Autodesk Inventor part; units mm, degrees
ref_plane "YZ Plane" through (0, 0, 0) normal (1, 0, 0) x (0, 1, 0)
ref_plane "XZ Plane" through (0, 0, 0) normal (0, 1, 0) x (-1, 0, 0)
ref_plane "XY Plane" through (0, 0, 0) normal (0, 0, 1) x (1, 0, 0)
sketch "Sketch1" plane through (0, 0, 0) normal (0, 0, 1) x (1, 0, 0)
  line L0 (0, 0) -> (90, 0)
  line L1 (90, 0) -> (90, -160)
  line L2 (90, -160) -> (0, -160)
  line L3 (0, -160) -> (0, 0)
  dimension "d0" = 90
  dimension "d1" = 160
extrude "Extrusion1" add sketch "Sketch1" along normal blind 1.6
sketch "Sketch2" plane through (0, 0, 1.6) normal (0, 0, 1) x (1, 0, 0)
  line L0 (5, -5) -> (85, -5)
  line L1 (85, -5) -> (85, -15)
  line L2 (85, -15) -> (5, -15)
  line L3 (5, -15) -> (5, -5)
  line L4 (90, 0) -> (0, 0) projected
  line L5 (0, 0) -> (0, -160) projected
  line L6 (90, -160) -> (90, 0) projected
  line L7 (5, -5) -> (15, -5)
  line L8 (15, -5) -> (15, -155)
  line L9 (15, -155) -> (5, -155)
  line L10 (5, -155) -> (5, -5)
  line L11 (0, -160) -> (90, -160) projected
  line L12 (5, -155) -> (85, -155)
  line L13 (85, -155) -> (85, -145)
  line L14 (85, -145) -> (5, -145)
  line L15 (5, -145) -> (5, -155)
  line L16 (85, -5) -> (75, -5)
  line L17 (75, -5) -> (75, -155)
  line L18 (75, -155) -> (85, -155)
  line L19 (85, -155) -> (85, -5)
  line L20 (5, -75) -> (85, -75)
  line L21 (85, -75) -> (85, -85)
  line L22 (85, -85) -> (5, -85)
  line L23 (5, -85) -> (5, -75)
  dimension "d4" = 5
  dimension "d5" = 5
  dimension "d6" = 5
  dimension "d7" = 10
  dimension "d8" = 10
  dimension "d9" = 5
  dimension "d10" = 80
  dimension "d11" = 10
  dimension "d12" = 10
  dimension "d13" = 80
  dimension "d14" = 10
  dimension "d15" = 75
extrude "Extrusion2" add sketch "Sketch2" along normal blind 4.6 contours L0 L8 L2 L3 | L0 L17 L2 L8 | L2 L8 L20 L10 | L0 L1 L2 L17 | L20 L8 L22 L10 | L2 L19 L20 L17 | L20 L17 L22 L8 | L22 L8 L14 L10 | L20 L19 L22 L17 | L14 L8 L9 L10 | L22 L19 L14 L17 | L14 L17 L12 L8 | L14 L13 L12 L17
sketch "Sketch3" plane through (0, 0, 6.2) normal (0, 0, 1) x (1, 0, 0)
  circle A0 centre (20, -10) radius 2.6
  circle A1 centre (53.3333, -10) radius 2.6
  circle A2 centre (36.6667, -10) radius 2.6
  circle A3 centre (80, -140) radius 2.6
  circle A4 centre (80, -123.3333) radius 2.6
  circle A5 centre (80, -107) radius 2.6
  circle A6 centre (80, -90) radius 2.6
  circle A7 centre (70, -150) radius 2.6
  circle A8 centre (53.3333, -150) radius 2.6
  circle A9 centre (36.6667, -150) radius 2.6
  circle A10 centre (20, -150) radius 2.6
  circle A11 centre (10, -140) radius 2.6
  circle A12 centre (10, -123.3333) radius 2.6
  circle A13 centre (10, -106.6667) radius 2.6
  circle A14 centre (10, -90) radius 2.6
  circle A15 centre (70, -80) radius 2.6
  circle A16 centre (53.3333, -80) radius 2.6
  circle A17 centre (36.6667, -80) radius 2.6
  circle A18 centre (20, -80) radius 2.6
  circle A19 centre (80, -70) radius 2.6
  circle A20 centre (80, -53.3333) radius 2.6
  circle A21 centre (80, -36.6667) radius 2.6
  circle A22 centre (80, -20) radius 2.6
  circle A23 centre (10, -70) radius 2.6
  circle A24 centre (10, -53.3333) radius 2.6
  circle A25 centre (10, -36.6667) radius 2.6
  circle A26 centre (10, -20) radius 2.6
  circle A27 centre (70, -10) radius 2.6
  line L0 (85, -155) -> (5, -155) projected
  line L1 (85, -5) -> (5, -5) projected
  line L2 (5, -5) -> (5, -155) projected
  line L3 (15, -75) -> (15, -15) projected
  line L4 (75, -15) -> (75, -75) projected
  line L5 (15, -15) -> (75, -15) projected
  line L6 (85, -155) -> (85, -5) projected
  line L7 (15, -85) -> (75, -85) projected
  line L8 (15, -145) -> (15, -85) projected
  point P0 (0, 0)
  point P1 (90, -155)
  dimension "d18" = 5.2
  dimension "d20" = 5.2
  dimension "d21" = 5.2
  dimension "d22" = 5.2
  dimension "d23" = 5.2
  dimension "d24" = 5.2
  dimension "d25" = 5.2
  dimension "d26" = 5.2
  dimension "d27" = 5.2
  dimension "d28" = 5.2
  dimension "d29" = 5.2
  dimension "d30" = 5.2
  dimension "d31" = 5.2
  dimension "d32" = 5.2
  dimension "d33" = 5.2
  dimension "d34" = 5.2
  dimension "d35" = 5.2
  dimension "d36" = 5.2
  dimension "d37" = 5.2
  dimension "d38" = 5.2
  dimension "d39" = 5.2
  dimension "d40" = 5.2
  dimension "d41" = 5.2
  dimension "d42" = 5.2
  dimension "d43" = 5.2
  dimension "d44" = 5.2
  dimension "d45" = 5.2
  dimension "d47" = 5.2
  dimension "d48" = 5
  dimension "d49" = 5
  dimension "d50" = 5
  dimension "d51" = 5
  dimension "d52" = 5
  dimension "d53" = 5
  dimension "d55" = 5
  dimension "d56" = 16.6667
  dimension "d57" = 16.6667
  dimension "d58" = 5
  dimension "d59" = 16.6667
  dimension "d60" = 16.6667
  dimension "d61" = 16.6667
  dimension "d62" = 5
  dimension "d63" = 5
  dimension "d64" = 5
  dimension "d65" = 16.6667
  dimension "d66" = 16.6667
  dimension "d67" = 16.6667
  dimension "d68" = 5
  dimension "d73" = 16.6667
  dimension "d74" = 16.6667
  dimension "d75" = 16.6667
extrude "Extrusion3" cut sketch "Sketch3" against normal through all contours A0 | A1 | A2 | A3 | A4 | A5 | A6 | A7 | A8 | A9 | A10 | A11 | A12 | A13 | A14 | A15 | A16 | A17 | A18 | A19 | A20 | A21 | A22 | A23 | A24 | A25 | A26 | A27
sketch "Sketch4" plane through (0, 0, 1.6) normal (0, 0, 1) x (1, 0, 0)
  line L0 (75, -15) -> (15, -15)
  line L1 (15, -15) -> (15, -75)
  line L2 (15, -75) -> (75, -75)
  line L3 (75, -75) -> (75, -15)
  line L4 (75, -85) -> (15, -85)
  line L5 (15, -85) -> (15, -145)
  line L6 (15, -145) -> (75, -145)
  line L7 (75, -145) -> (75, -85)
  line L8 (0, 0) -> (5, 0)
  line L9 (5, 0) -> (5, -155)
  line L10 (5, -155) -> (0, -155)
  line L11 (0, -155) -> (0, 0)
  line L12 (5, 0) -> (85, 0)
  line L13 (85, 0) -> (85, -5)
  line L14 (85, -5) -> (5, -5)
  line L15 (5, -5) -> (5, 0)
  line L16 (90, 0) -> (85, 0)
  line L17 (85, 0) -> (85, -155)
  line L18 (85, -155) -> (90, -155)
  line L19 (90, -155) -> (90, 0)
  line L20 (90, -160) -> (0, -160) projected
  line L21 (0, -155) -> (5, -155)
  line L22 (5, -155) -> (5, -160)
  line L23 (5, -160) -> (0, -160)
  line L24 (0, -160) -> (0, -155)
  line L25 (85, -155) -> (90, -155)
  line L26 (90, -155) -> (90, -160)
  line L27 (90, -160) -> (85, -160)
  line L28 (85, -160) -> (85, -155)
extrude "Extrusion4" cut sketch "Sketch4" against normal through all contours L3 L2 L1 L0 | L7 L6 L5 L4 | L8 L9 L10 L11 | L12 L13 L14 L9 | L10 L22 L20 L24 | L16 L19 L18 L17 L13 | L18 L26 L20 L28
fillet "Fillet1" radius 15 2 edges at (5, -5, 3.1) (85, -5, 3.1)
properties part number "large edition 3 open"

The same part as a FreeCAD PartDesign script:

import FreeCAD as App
import Part
import Sketcher
from FreeCAD import Vector
Q = App.Units.Quantity


def edges_at(feature, points):
    """Names of the edges that pass closest to the given points."""
    edges = feature.Shape.Edges
    near = lambda p: min(range(len(edges)), key=lambda i: edges[i].distToShape(Part.Vertex(*p))[0])
    return sorted({f"Edge{near(p) + 1}" for p in points})


def add_polygon(sketch, points):
    """Adds a closed chain of lines whose ends are joined by coincident constraints."""
    first, n = sketch.GeometryCount, len(points)
    for a, b in zip(points, points[1:] + points[:1]):
        sketch.addGeometry(Part.LineSegment(App.Vector(*a, 0), App.Vector(*b, 0)), False)
    for i in range(n):
        sketch.addConstraint(Sketcher.Constraint("Coincident", first + i, 2, first + (i + 1) % n, 1))

doc = App.newDocument("Part")
body = doc.addObject("PartDesign::Body", "Body")

# Sketch on XY plane
sketch1 = body.newObject("Sketcher::SketchObject", "Sketch")
sketch1.AttachmentSupport = (doc.getObject("XY_Plane"), [""])
sketch1.MapMode = "FlatFace"
add_polygon(sketch1, [(90, 0), (0, 0), (0, -160), (90, -160)])  # lines 0-3
sketch1.addConstraint([
    Sketcher.Constraint("Horizontal", 0),
    Sketcher.Constraint("Vertical", 1),
    Sketcher.Constraint("Horizontal", 2),
    Sketcher.Constraint("Vertical", 3),
    Sketcher.Constraint("Coincident", 0, 2, -1, 1),
    Sketcher.Constraint("DistanceX", 0, 2, 0, 1, Q("90 mm")),
    Sketcher.Constraint("DistanceY", 1, 2, 1, 1, Q("160 mm")),
])
pad1 = body.newObject("PartDesign::Pad", "Pad")
pad1.Profile = sketch1
pad1.Length = 1.6

# Sketch on XY plane
sketch2 = body.newObject("Sketcher::SketchObject", "Sketch001")
sketch2.AttachmentSupport = (doc.getObject("XY_Plane"), [""])
sketch2.MapMode = "FlatFace"
sketch2.AttachmentOffset = App.Placement(Vector(0, 0, 1.6), App.Rotation())
add_polygon(sketch2, [(5, -5), (5, -155), (85, -155), (85, -5)])  # lines 0-3
add_polygon(sketch2, [(15, -15), (75, -15), (75, -75), (15, -75)])  # lines 4-7
add_polygon(sketch2, [(15, -85), (75, -85), (75, -145), (15, -145)])  # lines 8-11
sketch2.addConstraint([
    Sketcher.Constraint("Vertical", 0),
    Sketcher.Constraint("Horizontal", 1),
    Sketcher.Constraint("Vertical", 2),
    Sketcher.Constraint("Horizontal", 3),
    Sketcher.Constraint("Horizontal", 4),
    Sketcher.Constraint("Vertical", 5),
    Sketcher.Constraint("Horizontal", 6),
    Sketcher.Constraint("Vertical", 7),
    Sketcher.Constraint("Horizontal", 8),
    Sketcher.Constraint("Vertical", 9),
    Sketcher.Constraint("Horizontal", 10),
    Sketcher.Constraint("Vertical", 11),
    Sketcher.Constraint("Vertical", 5, 2, 8, 2),
    Sketcher.Constraint("Vertical", 7, 2, 10, 2),
    Sketcher.Constraint("Equal", 10, 5),
    Sketcher.Constraint("Equal", 7, 9),
    Sketcher.Constraint("DistanceX", 1, 1, 1, 2, Q("80 mm")),
    Sketcher.Constraint("DistanceX", -1, 1, 0, 2, Q("5 mm")),
    Sketcher.Constraint("DistanceY", 2, 2, -1, 1, Q("5 mm")),
    Sketcher.Constraint("DistanceX", -1, 1, 4, 2, Q("75 mm")),
    Sketcher.Constraint("DistanceY", 5, 2, -1, 1, Q("75 mm")),
    Sketcher.Constraint("DistanceY", 4, 2, 2, 2, Q("10 mm")),
    Sketcher.Constraint("DistanceY", 1, 2, 5, 2, Q("80 mm")),
    Sketcher.Constraint("DistanceY", 8, 2, 5, 2, Q("10 mm")),
])
pad2 = body.newObject("PartDesign::Pad", "Pad001")
pad2.Profile = sketch2
pad2.Length = 4.6

# Sketch on XY plane
sketch3 = body.newObject("Sketcher::SketchObject", "Sketch002")
sketch3.AttachmentSupport = (doc.getObject("XY_Plane"), [""])
sketch3.MapMode = "FlatFace"
sketch3.AttachmentOffset = App.Placement(Vector(0, 0, 6.2), App.Rotation())
sketch3.addGeometry([
    Part.Circle(Vector(20, -10, 0), Vector(0, 0, 1), 2.6),  # 0
    Part.Circle(Vector(53.3, -10, 0), Vector(0, 0, 1), 2.6),  # 1
    Part.Circle(Vector(36.7, -10, 0), Vector(0, 0, 1), 2.6),  # 2
    Part.Circle(Vector(80, -140, 0), Vector(0, 0, 1), 2.6),  # 3
    Part.Circle(Vector(80, -123.3, 0), Vector(0, 0, 1), 2.6),  # 4
    Part.Circle(Vector(80, -107, 0), Vector(0, 0, 1), 2.6),  # 5
    Part.Circle(Vector(80, -90, 0), Vector(0, 0, 1), 2.6),  # 6
    Part.Circle(Vector(70, -150, 0), Vector(0, 0, 1), 2.6),  # 7
    Part.Circle(Vector(53.3, -150, 0), Vector(0, 0, 1), 2.6),  # 8
    Part.Circle(Vector(36.7, -150, 0), Vector(0, 0, 1), 2.6),  # 9
    Part.Circle(Vector(20, -150, 0), Vector(0, 0, 1), 2.6),  # 10
    Part.Circle(Vector(10, -140, 0), Vector(0, 0, 1), 2.6),  # 11
    Part.Circle(Vector(10, -123.3, 0), Vector(0, 0, 1), 2.6),  # 12
    Part.Circle(Vector(10, -106.7, 0), Vector(0, 0, 1), 2.6),  # 13
    Part.Circle(Vector(10, -90, 0), Vector(0, 0, 1), 2.6),  # 14
    Part.Circle(Vector(70, -80, 0), Vector(0, 0, 1), 2.6),  # 15
    Part.Circle(Vector(53.3, -80, 0), Vector(0, 0, 1), 2.6),  # 16
    Part.Circle(Vector(36.7, -80, 0), Vector(0, 0, 1), 2.6),  # 17
    Part.Circle(Vector(20, -80, 0), Vector(0, 0, 1), 2.6),  # 18
    Part.Circle(Vector(80, -70, 0), Vector(0, 0, 1), 2.6),  # 19
    Part.Circle(Vector(80, -53.3, 0), Vector(0, 0, 1), 2.6),  # 20
    Part.Circle(Vector(80, -36.7, 0), Vector(0, 0, 1), 2.6),  # 21
    Part.Circle(Vector(80, -20, 0), Vector(0, 0, 1), 2.6),  # 22
    Part.Circle(Vector(10, -70, 0), Vector(0, 0, 1), 2.6),  # 23
    Part.Circle(Vector(10, -53.3, 0), Vector(0, 0, 1), 2.6),  # 24
    Part.Circle(Vector(10, -36.7, 0), Vector(0, 0, 1), 2.6),  # 25
    Part.Circle(Vector(10, -20, 0), Vector(0, 0, 1), 2.6),  # 26
    Part.Circle(Vector(70, -10, 0), Vector(0, 0, 1), 2.6),  # 27
], False)
sketch3.addConstraint([
    Sketcher.Constraint("Equal", 0, 1),
    Sketcher.Constraint("Equal", 1, 2),
    Sketcher.Constraint("Equal", 2, 3),
    Sketcher.Constraint("Equal", 3, 4),
    Sketcher.Constraint("Equal", 4, 5),
    Sketcher.Constraint("Equal", 5, 6),
    Sketcher.Constraint("Equal", 6, 7),
    Sketcher.Constraint("Equal", 7, 8),
    Sketcher.Constraint("Equal", 8, 9),
    Sketcher.Constraint("Equal", 9, 10),
    Sketcher.Constraint("Equal", 10, 11),
    Sketcher.Constraint("Equal", 11, 12),
    Sketcher.Constraint("Equal", 12, 13),
    Sketcher.Constraint("Equal", 13, 14),
    Sketcher.Constraint("Equal", 14, 15),
    Sketcher.Constraint("Equal", 15, 16),
    Sketcher.Constraint("Equal", 16, 17),
    Sketcher.Constraint("Equal", 17, 18),
    Sketcher.Constraint("Equal", 18, 19),
    Sketcher.Constraint("Equal", 19, 20),
    Sketcher.Constraint("Equal", 20, 21),
    Sketcher.Constraint("Equal", 21, 22),
    Sketcher.Constraint("Equal", 22, 23),
    Sketcher.Constraint("Equal", 23, 24),
    Sketcher.Constraint("Equal", 24, 25),
    Sketcher.Constraint("Equal", 25, 26),
    Sketcher.Constraint("Equal", 26, 27),
    Sketcher.Constraint("Horizontal", 0, 3, 1, 3),
    Sketcher.Constraint("Horizontal", 1, 3, 2, 3),
    Sketcher.Constraint("Horizontal", 7, 3, 8, 3),
    Sketcher.Constraint("Horizontal", 8, 3, 9, 3),
    Sketcher.Constraint("Horizontal", 9, 3, 10, 3),
    Sketcher.Constraint("Horizontal", 3, 3, 11, 3),
    Sketcher.Constraint("Horizontal", 4, 3, 12, 3),
    Sketcher.Constraint("Horizontal", 6, 3, 14, 3),
    Sketcher.Constraint("Horizontal", 15, 3, 16, 3),
    Sketcher.Constraint("Horizontal", 16, 3, 17, 3),
    Sketcher.Constraint("Horizontal", 17, 3, 18, 3),
    Sketcher.Constraint("Horizontal", 19, 3, 23, 3),
    Sketcher.Constraint("Horizontal", 20, 3, 24, 3),
    Sketcher.Constraint("Horizontal", 21, 3, 25, 3),
    Sketcher.Constraint("Horizontal", 22, 3, 26, 3),
    Sketcher.Constraint("Horizontal", 2, 3, 27, 3),
    Sketcher.Constraint("Vertical", 3, 3, 4, 3),
    Sketcher.Constraint("Vertical", 4, 3, 5, 3),
    Sketcher.Constraint("Vertical", 5, 3, 6, 3),
    Sketcher.Constraint("Vertical", 1, 3, 8, 3),
    Sketcher.Constraint("Vertical", 2, 3, 9, 3),
    Sketcher.Constraint("Vertical", 0, 3, 10, 3),
    Sketcher.Constraint("Vertical", 11, 3, 12, 3),
    Sketcher.Constraint("Vertical", 12, 3, 13, 3),
    Sketcher.Constraint("Vertical", 13, 3, 14, 3),
    Sketcher.Constraint("Vertical", 7, 3, 15, 3),
    Sketcher.Constraint("Vertical", 8, 3, 16, 3),
    Sketcher.Constraint("Vertical", 9, 3, 17, 3),
    Sketcher.Constraint("Vertical", 10, 3, 18, 3),
    Sketcher.Constraint("Vertical", 6, 3, 19, 3),
    Sketcher.Constraint("Vertical", 19, 3, 20, 3),
    Sketcher.Constraint("Vertical", 20, 3, 21, 3),
    Sketcher.Constraint("Vertical", 21, 3, 22, 3),
    Sketcher.Constraint("Vertical", 14, 3, 23, 3),
    Sketcher.Constraint("Vertical", 23, 3, 24, 3),
    Sketcher.Constraint("Vertical", 24, 3, 25, 3),
    Sketcher.Constraint("Vertical", 25, 3, 26, 3),
    Sketcher.Constraint("Vertical", 15, 3, 27, 3),
    Sketcher.Constraint("Diameter", 0, Q("5.2 mm")),
    Sketcher.Constraint("DistanceX", -1, 1, 0, 3, Q("20 mm")),
    Sketcher.Constraint("DistanceY", 0, 3, -1, 1, Q("10 mm")),
    Sketcher.Constraint("DistanceX", -1, 1, 3, 3, Q("80 mm")),
    Sketcher.Constraint("DistanceY", 3, 3, -1, 1, Q("140 mm")),
    Sketcher.Constraint("DistanceY", 5, 3, -1, 1, Q("107 mm")),
    Sketcher.Constraint("DistanceY", 6, 3, -1, 1, Q("90 mm")),
    Sketcher.Constraint("DistanceX", -1, 1, 7, 3, Q("70 mm")),
    Sketcher.Constraint("DistanceY", 7, 3, -1, 1, Q("150 mm")),
    Sketcher.Constraint("DistanceX", -1, 1, 11, 3, Q("10 mm")),
    Sketcher.Constraint("DistanceY", 15, 3, -1, 1, Q("80 mm")),
    Sketcher.Constraint("DistanceY", 19, 3, -1, 1, Q("70 mm")),
    Sketcher.Constraint("DistanceY", 22, 3, -1, 1, Q("20 mm")),
    Sketcher.Constraint("DistanceX", 2, 3, 1, 3, Q("16.6666 mm")),
    Sketcher.Constraint("DistanceX", 0, 3, 2, 3, Q("16.6667 mm")),
    Sketcher.Constraint("DistanceY", 3, 3, 4, 3, Q("16.6667 mm")),
    Sketcher.Constraint("DistanceY", 12, 3, 13, 3, Q("16.6666 mm")),
    Sketcher.Constraint("DistanceY", 19, 3, 20, 3, Q("16.6667 mm")),
    Sketcher.Constraint("DistanceY", 20, 3, 21, 3, Q("16.6666 mm")),
])
pocket1 = body.newObject("PartDesign::Pocket", "Pocket")
pocket1.Profile = sketch3
pocket1.Type = "ThroughAll"

# Sketch on XY plane
sketch4 = body.newObject("Sketcher::SketchObject", "Sketch003")
sketch4.AttachmentSupport = (doc.getObject("XY_Plane"), [""])
sketch4.MapMode = "FlatFace"
sketch4.AttachmentOffset = App.Placement(Vector(0, 0, 1.6), App.Rotation())
add_polygon(sketch4, [(75, -75), (75, -15), (15, -15), (15, -75)])  # lines 0-3
add_polygon(sketch4, [(75, -145), (75, -85), (15, -85), (15, -145)])  # lines 4-7
add_polygon(sketch4, [(0, 0), (0, -160), (5, -160), (5, -5), (85, -5), (85, -160), (90, -160), (90, 0)])  # lines 8-15
sketch4.addConstraint([
    Sketcher.Constraint("Vertical", 0),
    Sketcher.Constraint("Horizontal", 1),
    Sketcher.Constraint("Vertical", 2),
    Sketcher.Constraint("Horizontal", 3),
    Sketcher.Constraint("Vertical", 4),
    Sketcher.Constraint("Horizontal", 5),
    Sketcher.Constraint("Vertical", 6),
    Sketcher.Constraint("Horizontal", 7),
    Sketcher.Constraint("Vertical", 8),
    Sketcher.Constraint("Horizontal", 9),
    Sketcher.Constraint("Vertical", 10),
    Sketcher.Constraint("Horizontal", 11),
    Sketcher.Constraint("Vertical", 12),
    Sketcher.Constraint("Horizontal", 13),
    Sketcher.Constraint("Vertical", 14),
    Sketcher.Constraint("Horizontal", 15),
    Sketcher.Constraint("Coincident", 15, 2, -1, 1),
    Sketcher.Constraint("Horizontal", 9, 2, 12, 2),
    Sketcher.Constraint("Vertical", 3, 2, 4, 2),
    Sketcher.Constraint("Vertical", 2, 2, 5, 2),
    Sketcher.Constraint("Equal", 9, 13),
    Sketcher.Constraint("Equal", 7, 0),
    Sketcher.Constraint("Equal", 2, 4),
    Sketcher.Constraint("DistanceX", 1, 2, 1, 1, Q("60 mm")),
    Sketcher.Constraint("DistanceX", 9, 1, 9, 2, Q("5 mm")),
    Sketcher.Constraint("DistanceX", 11, 1, 11, 2, Q("80 mm")),
    Sketcher.Constraint("DistanceY", 8, 2, 8, 1, Q("160 mm")),
    Sketcher.Constraint("DistanceY", 10, 1, 10, 2, Q("155 mm")),
    Sketcher.Constraint("DistanceX", -1, 1, 0, 2, Q("75 mm")),
    Sketcher.Constraint("DistanceY", 0, 2, -1, 1, Q("15 mm")),
    Sketcher.Constraint("DistanceY", 4, 2, -1, 1, Q("85 mm")),
])
pocket2 = body.newObject("PartDesign::Pocket", "Pocket001")
pocket2.Profile = sketch4
pocket2.Type = "ThroughAll"
doc.recompute()

fillet = body.newObject("PartDesign::Fillet", "Fillet")
fillet.Base = (pocket2, edges_at(pocket2, [(5, -5, 3.1), (85, -5, 3.1)]))
fillet.Radius = 15

doc.recompute()
